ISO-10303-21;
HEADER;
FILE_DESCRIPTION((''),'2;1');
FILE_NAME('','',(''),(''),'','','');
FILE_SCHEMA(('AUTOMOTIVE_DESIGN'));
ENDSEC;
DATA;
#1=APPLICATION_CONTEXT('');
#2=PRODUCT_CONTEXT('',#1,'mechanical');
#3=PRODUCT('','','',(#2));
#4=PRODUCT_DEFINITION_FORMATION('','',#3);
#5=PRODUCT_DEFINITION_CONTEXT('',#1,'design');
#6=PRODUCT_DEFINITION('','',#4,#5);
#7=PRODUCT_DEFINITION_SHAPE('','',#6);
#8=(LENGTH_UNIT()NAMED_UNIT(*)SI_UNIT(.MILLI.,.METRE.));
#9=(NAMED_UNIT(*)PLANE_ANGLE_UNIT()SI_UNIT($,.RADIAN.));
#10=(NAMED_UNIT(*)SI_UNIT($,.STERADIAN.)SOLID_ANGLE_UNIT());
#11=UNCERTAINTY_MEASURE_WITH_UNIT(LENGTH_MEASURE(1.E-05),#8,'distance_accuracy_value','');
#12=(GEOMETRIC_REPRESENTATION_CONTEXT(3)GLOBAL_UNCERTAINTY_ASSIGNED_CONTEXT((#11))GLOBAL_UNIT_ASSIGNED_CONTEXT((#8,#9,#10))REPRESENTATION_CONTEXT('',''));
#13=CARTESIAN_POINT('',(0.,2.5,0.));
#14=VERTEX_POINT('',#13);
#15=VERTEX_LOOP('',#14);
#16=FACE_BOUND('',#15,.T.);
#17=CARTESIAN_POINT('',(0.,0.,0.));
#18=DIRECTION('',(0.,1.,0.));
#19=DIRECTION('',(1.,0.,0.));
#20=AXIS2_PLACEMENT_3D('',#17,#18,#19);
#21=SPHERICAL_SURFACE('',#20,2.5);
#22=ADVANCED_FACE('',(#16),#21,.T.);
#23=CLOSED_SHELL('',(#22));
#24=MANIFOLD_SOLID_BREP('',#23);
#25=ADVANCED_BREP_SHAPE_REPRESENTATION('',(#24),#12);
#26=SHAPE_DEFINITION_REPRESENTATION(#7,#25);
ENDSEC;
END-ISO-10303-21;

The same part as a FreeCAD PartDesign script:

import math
import FreeCAD as App
import Part
import Sketcher

V = App.Vector
Q = App.Units.Quantity

doc = App.newDocument("Part")
params = doc.addObject("Spreadsheet::Sheet", "Params")
for row, (alias, value) in enumerate([
    ("sketch1_radius", "2.5 mm"),
    ("revolution_angle", "360 deg"),
], start=1):
    params.set(f"A{row}", alias)
    params.set(f"B{row}", "=" + value)
    params.setAlias(f"B{row}", alias)

body = doc.addObject("PartDesign::Body", "Body")

sketch1 = doc.addObject("Sketcher::SketchObject", "Sketch")
body.addObject(sketch1)
sketch1.AttachmentSupport = (doc.XY_Plane, [""])
sketch1.MapMode = "FlatFace"
sketch1.addGeometry([
    Part.LineSegment(V(0, 2.5, 0), V(0, -2.5, 0)),
    Part.ArcOfCircle(Part.Circle(V(0, 0, 0), V(0, 0, 1), 2.5), math.radians(-90), math.radians(90)),
], False)
sketch1.addConstraint([
    Sketcher.Constraint("Coincident", 0, 1, 1, 2),
    Sketcher.Constraint("Coincident", 1, 1, 0, 2),
    Sketcher.Constraint("Vertical", 0),
    Sketcher.Constraint("Coincident", 1, 3, -1, 1),
    Sketcher.Constraint("PointOnObject", 0, 1, -2),
    Sketcher.Constraint("Radius", 1, Q("2.5 mm")),
])
sketch1.setExpression("Constraints[5]", "Params.sketch1_radius")
revolution = doc.addObject("PartDesign::Revolution", "Revolution")
body.addObject(revolution)
revolution.Profile = sketch1
revolution.ReferenceAxis = (sketch1, ["V_Axis"])
revolution.setExpression("Angle", "Params.revolution_angle")

doc.recompute()
